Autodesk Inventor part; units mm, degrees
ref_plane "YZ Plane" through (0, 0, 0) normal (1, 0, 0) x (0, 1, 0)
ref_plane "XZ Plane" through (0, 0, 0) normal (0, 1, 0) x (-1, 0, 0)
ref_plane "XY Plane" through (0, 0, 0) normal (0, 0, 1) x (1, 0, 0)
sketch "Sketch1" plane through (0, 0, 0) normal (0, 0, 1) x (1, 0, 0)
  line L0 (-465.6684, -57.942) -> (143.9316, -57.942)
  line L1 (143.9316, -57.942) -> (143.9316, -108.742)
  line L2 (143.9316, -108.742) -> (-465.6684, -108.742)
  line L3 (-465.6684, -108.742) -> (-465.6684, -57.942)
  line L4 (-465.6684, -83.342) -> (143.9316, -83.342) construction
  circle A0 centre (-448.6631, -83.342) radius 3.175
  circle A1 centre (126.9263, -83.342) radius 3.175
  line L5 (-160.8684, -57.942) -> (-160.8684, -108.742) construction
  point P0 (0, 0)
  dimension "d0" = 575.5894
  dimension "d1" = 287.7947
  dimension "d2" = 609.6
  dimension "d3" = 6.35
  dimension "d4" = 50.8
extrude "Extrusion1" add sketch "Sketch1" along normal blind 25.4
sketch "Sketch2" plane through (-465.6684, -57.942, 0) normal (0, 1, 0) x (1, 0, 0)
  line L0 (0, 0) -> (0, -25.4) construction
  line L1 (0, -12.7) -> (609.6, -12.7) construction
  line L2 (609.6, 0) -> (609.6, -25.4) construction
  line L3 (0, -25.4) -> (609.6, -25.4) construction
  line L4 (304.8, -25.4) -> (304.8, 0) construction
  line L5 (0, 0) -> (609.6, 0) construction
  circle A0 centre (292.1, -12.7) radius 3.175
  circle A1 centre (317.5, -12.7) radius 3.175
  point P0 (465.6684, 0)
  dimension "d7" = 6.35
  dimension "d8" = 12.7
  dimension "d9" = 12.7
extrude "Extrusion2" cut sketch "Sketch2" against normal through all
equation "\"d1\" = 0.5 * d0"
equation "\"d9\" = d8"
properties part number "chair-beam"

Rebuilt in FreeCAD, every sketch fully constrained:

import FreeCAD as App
import Part
import Sketcher
from FreeCAD import Vector
Q = App.Units.Quantity


def add_polygon(sketch, points):
    """Adds a closed chain of lines whose ends are joined by coincident constraints."""
    first, n = sketch.GeometryCount, len(points)
    for a, b in zip(points, points[1:] + points[:1]):
        sketch.addGeometry(Part.LineSegment(App.Vector(*a, 0), App.Vector(*b, 0)), False)
    for i in range(n):
        sketch.addConstraint(Sketcher.Constraint("Coincident", first + i, 2, first + (i + 1) % n, 1))

doc = App.newDocument("Part")
body = doc.addObject("PartDesign::Body", "Body")

# Sketch on XY plane
sketch1 = body.newObject("Sketcher::SketchObject", "Sketch")
sketch1.AttachmentSupport = (doc.getObject("XY_Plane"), [""])
sketch1.MapMode = "FlatFace"
add_polygon(sketch1, [(143.9, -57.9), (-465.7, -57.9), (-465.7, -108.7), (143.9, -108.7)])  # lines 0-3
sketch1.addGeometry(Part.Circle(Vector(-448.7, -83.3, 0), Vector(0, 0, 1), 3.2), False)  # 4
sketch1.addGeometry(Part.Circle(Vector(126.9, -83.3, 0), Vector(0, 0, 1), 3.2), False)  # 5
sketch1.addConstraint([
    Sketcher.Constraint("Horizontal", 0),
    Sketcher.Constraint("Vertical", 1),
    Sketcher.Constraint("Horizontal", 2),
    Sketcher.Constraint("Vertical", 3),
    Sketcher.Constraint("Equal", 4, 5),
    Sketcher.Constraint("Horizontal", 4, 3, 5, 3),
    Sketcher.Constraint("Diameter", 4, Q("0.25 in")),
    Sketcher.Constraint("DistanceX", 0, 2, 0, 1, Q("24 in")),
    Sketcher.Constraint("DistanceY", 1, 2, 1, 1, Q("2 in")),
    Sketcher.Constraint("DistanceX", 4, 3, 5, 3, Q("22.661 in")),
    Sketcher.Constraint("DistanceY", 4, 3, 0, 2, Q("1 in")),
    Sketcher.Constraint("DistanceX", 4, 3, -1, 1, Q("17.6639 in")),
    Sketcher.Constraint("DistanceX", 0, 2, -1, 1, Q("18.3334 in")),
    Sketcher.Constraint("DistanceY", 4, 3, -1, 1, Q("83.342 mm")),
])
pad1 = body.newObject("PartDesign::Pad", "Pad")
pad1.Profile = sketch1
pad1.Length = Q("1 in")

# Sketch on XZ plane
sketch2 = body.newObject("Sketcher::SketchObject", "Sketch001")
sketch2.AttachmentSupport = (doc.getObject("XZ_Plane"), [""])
sketch2.MapMode = "FlatFace"
sketch2.AttachmentOffset = App.Placement(Vector(0, 0, 57.942), App.Rotation())
sketch2.addGeometry([
    Part.Circle(Vector(-173.6, 12.7, 0), Vector(0, 0, 1), 3.2),
    Part.Circle(Vector(-148.2, 12.7, 0), Vector(0, 0, 1), 3.2),
], False)
sketch2.addConstraint([
    Sketcher.Constraint("Equal", 0, 1),
    Sketcher.Constraint("Horizontal", 0, 3, 1, 3),
    Sketcher.Constraint("Diameter", 0, Q("0.25 in")),
    Sketcher.Constraint("DistanceY", -1, 1, 0, 3, Q("0.5 in")),
    Sketcher.Constraint("DistanceX", 0, 3, 1, 3, Q("1 in")),
    Sketcher.Constraint("DistanceX", 0, 3, -1, 1, Q("6.8334 in")),
])
pocket1 = body.newObject("PartDesign::Pocket", "Pocket")
pocket1.Profile = sketch2
pocket1.Type = "ThroughAll"
pocket1.Reversed = True

doc.recompute()
